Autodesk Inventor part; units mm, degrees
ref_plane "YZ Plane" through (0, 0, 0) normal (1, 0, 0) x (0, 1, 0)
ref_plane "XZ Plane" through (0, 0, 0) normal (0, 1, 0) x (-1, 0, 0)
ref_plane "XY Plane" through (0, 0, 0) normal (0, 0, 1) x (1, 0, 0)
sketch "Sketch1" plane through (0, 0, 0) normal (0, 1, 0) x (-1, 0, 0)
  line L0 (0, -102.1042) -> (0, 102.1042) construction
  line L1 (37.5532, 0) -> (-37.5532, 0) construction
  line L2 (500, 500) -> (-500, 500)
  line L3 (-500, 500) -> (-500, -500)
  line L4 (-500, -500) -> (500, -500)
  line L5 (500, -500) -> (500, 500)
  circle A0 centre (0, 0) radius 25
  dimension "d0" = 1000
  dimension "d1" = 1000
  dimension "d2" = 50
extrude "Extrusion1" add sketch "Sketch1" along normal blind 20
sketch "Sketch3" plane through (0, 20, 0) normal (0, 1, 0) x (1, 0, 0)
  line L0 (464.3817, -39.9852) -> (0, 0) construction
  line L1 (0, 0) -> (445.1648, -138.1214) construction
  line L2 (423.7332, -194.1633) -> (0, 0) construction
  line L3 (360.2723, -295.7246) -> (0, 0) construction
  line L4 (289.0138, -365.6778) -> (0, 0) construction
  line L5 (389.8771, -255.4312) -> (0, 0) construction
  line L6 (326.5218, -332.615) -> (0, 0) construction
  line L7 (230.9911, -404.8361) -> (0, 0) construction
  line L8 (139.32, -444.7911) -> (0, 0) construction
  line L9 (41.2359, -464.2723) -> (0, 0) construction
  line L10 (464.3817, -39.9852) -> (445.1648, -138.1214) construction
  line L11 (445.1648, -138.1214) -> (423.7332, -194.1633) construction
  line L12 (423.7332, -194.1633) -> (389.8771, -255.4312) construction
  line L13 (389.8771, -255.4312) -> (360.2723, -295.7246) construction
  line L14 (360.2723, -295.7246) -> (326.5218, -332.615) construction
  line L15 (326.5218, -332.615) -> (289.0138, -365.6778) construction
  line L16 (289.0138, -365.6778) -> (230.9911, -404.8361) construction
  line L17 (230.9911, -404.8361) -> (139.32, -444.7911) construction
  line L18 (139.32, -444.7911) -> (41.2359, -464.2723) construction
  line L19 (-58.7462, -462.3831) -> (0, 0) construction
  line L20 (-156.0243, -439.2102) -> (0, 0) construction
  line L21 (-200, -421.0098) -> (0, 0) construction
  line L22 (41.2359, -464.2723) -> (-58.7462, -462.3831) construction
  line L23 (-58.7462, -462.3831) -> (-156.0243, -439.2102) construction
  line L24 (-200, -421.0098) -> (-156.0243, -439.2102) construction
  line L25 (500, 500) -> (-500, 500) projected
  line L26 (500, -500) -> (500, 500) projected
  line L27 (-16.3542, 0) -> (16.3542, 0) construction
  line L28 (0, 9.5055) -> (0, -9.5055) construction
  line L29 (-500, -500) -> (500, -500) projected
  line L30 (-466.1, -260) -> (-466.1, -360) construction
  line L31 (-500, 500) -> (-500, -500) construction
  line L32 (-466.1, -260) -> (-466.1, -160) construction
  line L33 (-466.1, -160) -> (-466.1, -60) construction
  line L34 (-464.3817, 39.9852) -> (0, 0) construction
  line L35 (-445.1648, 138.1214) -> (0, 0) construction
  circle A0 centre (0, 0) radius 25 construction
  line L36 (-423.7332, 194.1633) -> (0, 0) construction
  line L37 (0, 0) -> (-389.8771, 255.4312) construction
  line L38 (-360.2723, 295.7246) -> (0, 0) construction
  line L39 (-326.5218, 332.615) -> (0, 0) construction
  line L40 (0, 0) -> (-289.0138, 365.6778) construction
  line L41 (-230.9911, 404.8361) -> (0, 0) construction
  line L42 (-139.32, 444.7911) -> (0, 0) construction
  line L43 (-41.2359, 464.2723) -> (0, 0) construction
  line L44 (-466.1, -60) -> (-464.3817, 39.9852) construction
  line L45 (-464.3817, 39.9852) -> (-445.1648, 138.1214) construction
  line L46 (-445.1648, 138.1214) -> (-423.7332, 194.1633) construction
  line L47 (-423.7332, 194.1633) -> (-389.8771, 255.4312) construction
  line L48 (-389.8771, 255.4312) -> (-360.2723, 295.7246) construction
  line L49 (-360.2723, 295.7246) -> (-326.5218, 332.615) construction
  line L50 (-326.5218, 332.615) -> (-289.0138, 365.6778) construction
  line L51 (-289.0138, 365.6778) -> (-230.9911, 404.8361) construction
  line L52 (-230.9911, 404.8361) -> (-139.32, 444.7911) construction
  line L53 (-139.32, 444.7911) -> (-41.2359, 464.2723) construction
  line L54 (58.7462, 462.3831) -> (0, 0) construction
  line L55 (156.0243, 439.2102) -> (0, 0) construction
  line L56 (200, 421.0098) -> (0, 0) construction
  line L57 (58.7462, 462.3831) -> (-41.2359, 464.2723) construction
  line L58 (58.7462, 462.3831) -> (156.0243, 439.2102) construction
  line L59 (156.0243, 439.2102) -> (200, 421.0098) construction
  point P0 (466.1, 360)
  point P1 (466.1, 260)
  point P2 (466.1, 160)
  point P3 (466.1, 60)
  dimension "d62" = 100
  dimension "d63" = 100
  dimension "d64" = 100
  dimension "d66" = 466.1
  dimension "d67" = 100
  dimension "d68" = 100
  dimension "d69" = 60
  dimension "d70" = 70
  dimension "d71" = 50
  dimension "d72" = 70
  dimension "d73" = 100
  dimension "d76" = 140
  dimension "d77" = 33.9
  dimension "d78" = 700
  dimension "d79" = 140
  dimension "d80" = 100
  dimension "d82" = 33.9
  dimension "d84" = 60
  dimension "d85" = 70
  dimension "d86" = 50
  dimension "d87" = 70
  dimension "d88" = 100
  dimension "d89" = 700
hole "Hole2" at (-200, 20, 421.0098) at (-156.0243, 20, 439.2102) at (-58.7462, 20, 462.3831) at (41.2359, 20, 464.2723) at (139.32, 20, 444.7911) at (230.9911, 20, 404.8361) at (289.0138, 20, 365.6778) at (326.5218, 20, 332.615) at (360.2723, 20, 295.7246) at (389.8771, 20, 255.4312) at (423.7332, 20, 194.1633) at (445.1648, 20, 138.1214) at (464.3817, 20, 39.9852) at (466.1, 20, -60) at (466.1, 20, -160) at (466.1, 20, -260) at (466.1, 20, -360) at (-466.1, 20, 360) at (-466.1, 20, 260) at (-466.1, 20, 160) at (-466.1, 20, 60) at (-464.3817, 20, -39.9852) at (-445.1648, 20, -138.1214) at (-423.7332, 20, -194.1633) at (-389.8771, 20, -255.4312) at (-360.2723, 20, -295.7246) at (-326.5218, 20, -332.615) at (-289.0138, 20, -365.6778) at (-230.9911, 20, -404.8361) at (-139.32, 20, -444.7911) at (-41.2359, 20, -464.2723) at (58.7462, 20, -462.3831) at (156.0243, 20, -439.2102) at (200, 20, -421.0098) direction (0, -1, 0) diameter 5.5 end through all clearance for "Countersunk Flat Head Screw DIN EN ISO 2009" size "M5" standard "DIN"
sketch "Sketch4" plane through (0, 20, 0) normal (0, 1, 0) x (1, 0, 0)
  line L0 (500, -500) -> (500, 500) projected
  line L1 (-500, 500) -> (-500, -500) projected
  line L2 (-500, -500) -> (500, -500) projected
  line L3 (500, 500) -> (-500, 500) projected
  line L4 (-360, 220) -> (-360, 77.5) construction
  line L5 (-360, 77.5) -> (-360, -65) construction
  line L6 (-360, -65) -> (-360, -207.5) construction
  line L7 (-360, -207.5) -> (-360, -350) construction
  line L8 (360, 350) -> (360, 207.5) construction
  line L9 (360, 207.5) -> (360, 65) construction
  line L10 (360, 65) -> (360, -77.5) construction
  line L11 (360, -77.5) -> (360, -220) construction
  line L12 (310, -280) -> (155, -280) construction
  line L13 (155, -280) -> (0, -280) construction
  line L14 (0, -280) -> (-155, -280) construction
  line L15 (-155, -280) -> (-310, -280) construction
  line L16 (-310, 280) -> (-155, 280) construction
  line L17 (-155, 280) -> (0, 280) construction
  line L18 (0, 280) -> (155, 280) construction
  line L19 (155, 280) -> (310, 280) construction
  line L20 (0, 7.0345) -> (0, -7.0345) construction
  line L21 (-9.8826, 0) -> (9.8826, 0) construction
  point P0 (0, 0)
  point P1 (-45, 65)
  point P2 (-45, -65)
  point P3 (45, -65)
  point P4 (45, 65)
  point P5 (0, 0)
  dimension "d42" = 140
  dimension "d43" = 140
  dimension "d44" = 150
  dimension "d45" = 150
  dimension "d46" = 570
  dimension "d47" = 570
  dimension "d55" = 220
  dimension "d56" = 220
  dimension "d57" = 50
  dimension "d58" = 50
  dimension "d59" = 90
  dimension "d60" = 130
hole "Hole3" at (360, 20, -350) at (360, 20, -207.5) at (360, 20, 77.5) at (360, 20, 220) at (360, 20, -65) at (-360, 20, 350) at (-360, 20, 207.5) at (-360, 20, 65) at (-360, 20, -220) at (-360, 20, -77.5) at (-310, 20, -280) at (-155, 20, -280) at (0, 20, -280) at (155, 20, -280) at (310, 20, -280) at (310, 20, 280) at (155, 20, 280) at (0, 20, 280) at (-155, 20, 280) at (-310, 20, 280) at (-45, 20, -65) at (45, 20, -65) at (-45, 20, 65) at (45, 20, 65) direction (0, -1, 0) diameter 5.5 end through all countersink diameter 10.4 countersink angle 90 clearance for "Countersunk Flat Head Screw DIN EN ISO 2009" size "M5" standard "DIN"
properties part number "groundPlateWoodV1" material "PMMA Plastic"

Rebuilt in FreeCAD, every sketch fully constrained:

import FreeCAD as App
import Part
import Sketcher

V = App.Vector

doc = App.newDocument("Part")
body = doc.addObject("PartDesign::Body", "Body")

sketch1 = doc.addObject("Sketcher::SketchObject", "Sketch")
body.addObject(sketch1)
sketch1.AttachmentSupport = (doc.XZ_Plane, [""])
sketch1.MapMode = "FlatFace"
sketch1.addGeometry(Part.LineSegment(V(-500, -500, 0), V(-500, 500, 0)), False)
sketch1.addGeometry(Part.LineSegment(V(-500, 500, 0), V(500, 500, 0)), False)
sketch1.addGeometry(Part.LineSegment(V(500, 500, 0), V(500, -500, 0)), False)
sketch1.addGeometry(Part.LineSegment(V(500, -500, 0), V(-500, -500, 0)), False)
sketch1.addGeometry(Part.Circle(V(0, 0, 0), V(0, 0, 1), 25), False)
sketch1.addConstraint(Sketcher.Constraint("Coincident", 0, 2, 1, 1))
sketch1.addConstraint(Sketcher.Constraint("Coincident", 1, 2, 2, 1))
sketch1.addConstraint(Sketcher.Constraint("Coincident", 2, 2, 3, 1))
sketch1.addConstraint(Sketcher.Constraint("Coincident", 3, 2, 0, 1))
sketch1.addConstraint(Sketcher.Constraint("Vertical", 0))
sketch1.addConstraint(Sketcher.Constraint("Horizontal", 1))
sketch1.addConstraint(Sketcher.Constraint("Vertical", 2))
sketch1.addConstraint(Sketcher.Constraint("Horizontal", 3))
sketch1.addConstraint(Sketcher.Constraint("Coincident", 4, 3, -1, 1))
sketch1.addConstraint(Sketcher.Constraint("Symmetric", 0, 2, 2, 2, -1, 1))
sketch1.addConstraint(Sketcher.Constraint("Equal", 3, 0))
sketch1.addConstraint(Sketcher.Constraint("Diameter", 4, 50.0))
sketch1.addConstraint(Sketcher.Constraint("DistanceX", 1, 1, 1, 2, 1000.0))
pad1 = doc.addObject("PartDesign::Pad", "Pad")
body.addObject(pad1)
pad1.Profile = sketch1
pad1.Length = 20
pad1.Reversed = True

sketch2 = doc.addObject("Sketcher::SketchObject", "Sketch001")
body.addObject(sketch2)
sketch2.AttachmentSupport = (doc.XZ_Plane, [""])
sketch2.MapMode = "FlatFace"
sketch2.AttachmentOffset = App.Placement(V(0, 0, -20), App.Rotation())
sketch2.addGeometry(Part.Circle(V(-200, 421, 0), V(0, 0, 1), 2.8), False)
sketch2.addGeometry(Part.Circle(V(-156, 439.2, 0), V(0, 0, 1), 2.8), False)
sketch2.addGeometry(Part.Circle(V(-58.7, 462.4, 0), V(0, 0, 1), 2.8), False)
sketch2.addGeometry(Part.Circle(V(41.2, 464.3, 0), V(0, 0, 1), 2.8), False)
sketch2.addGeometry(Part.Circle(V(139.3, 444.8, 0), V(0, 0, 1), 2.8), False)
sketch2.addGeometry(Part.Circle(V(231, 404.8, 0), V(0, 0, 1), 2.8), False)
sketch2.addGeometry(Part.Circle(V(289, 365.7, 0), V(0, 0, 1), 2.8), False)
sketch2.addGeometry(Part.Circle(V(326.5, 332.6, 0), V(0, 0, 1), 2.8), False)
sketch2.addGeometry(Part.Circle(V(360.3, 295.7, 0), V(0, 0, 1), 2.8), False)
sketch2.addGeometry(Part.Circle(V(389.9, 255.4, 0), V(0, 0, 1), 2.8), False)
sketch2.addGeometry(Part.Circle(V(423.7, 194.2, 0), V(0, 0, 1), 2.8), False)
sketch2.addGeometry(Part.Circle(V(445.2, 138.1, 0), V(0, 0, 1), 2.8), False)
sketch2.addGeometry(Part.Circle(V(464.4, 40, 0), V(0, 0, 1), 2.8), False)
sketch2.addGeometry(Part.Circle(V(466.1, -60, 0), V(0, 0, 1), 2.8), False)
sketch2.addGeometry(Part.Circle(V(466.1, -160, 0), V(0, 0, 1), 2.8), False)
sketch2.addGeometry(Part.Circle(V(466.1, -260, 0), V(0, 0, 1), 2.8), False)
sketch2.addGeometry(Part.Circle(V(466.1, -360, 0), V(0, 0, 1), 2.8), False)
sketch2.addGeometry(Part.Circle(V(-466.1, 360, 0), V(0, 0, 1), 2.8), False)
sketch2.addGeometry(Part.Circle(V(-466.1, 260, 0), V(0, 0, 1), 2.8), False)
sketch2.addGeometry(Part.Circle(V(-466.1, 160, 0), V(0, 0, 1), 2.8), False)
sketch2.addGeometry(Part.Circle(V(-466.1, 60, 0), V(0, 0, 1), 2.8), False)
sketch2.addGeometry(Part.Circle(V(-464.4, -40, 0), V(0, 0, 1), 2.8), False)
sketch2.addGeometry(Part.Circle(V(-445.2, -138.1, 0), V(0, 0, 1), 2.8), False)
sketch2.addGeometry(Part.Circle(V(-423.7, -194.2, 0), V(0, 0, 1), 2.8), False)
sketch2.addGeometry(Part.Circle(V(-389.9, -255.4, 0), V(0, 0, 1), 2.8), False)
sketch2.addGeometry(Part.Circle(V(-360.3, -295.7, 0), V(0, 0, 1), 2.8), False)
sketch2.addGeometry(Part.Circle(V(-326.5, -332.6, 0), V(0, 0, 1), 2.8), False)
sketch2.addGeometry(Part.Circle(V(-289, -365.7, 0), V(0, 0, 1), 2.8), False)
sketch2.addGeometry(Part.Circle(V(-231, -404.8, 0), V(0, 0, 1), 2.8), False)
sketch2.addGeometry(Part.Circle(V(-139.3, -444.8, 0), V(0, 0, 1), 2.8), False)
sketch2.addGeometry(Part.Circle(V(-41.2, -464.3, 0), V(0, 0, 1), 2.8), False)
sketch2.addGeometry(Part.Circle(V(58.7, -462.4, 0), V(0, 0, 1), 2.8), False)
sketch2.addGeometry(Part.Circle(V(156, -439.2, 0), V(0, 0, 1), 2.8), False)
sketch2.addGeometry(Part.Circle(V(200, -421, 0), V(0, 0, 1), 2.8), False)
sketch2.addConstraint(Sketcher.Constraint("Equal", 0, 1))
sketch2.addConstraint(Sketcher.Constraint("Equal", 1, 2))
sketch2.addConstraint(Sketcher.Constraint("Equal", 2, 3))
sketch2.addConstraint(Sketcher.Constraint("Equal", 3, 4))
sketch2.addConstraint(Sketcher.Constraint("Equal", 4, 5))
sketch2.addConstraint(Sketcher.Constraint("Equal", 5, 6))
sketch2.addConstraint(Sketcher.Constraint("Equal", 6, 7))
sketch2.addConstraint(Sketcher.Constraint("Equal", 7, 8))
sketch2.addConstraint(Sketcher.Constraint("Equal", 8, 9))
sketch2.addConstraint(Sketcher.Constraint("Equal", 9, 10))
sketch2.addConstraint(Sketcher.Constraint("Equal", 10, 11))
sketch2.addConstraint(Sketcher.Constraint("Equal", 11, 12))
sketch2.addConstraint(Sketcher.Constraint("Equal", 12, 13))
sketch2.addConstraint(Sketcher.Constraint("Equal", 13, 14))
sketch2.addConstraint(Sketcher.Constraint("Equal", 14, 15))
sketch2.addConstraint(Sketcher.Constraint("Equal", 15, 16))
sketch2.addConstraint(Sketcher.Constraint("Equal", 16, 17))
sketch2.addConstraint(Sketcher.Constraint("Equal", 17, 18))
sketch2.addConstraint(Sketcher.Constraint("Equal", 18, 19))
sketch2.addConstraint(Sketcher.Constraint("Equal", 19, 20))
sketch2.addConstraint(Sketcher.Constraint("Equal", 20, 21))
sketch2.addConstraint(Sketcher.Constraint("Equal", 21, 22))
sketch2.addConstraint(Sketcher.Constraint("Equal", 22, 23))
sketch2.addConstraint(Sketcher.Constraint("Equal", 23, 24))
sketch2.addConstraint(Sketcher.Constraint("Equal", 24, 25))
sketch2.addConstraint(Sketcher.Constraint("Equal", 25, 26))
sketch2.addConstraint(Sketcher.Constraint("Equal", 26, 27))
sketch2.addConstraint(Sketcher.Constraint("Equal", 27, 28))
sketch2.addConstraint(Sketcher.Constraint("Equal", 28, 29))
sketch2.addConstraint(Sketcher.Constraint("Equal", 29, 30))
sketch2.addConstraint(Sketcher.Constraint("Equal", 30, 31))
sketch2.addConstraint(Sketcher.Constraint("Equal", 31, 32))
sketch2.addConstraint(Sketcher.Constraint("Equal", 32, 33))
sketch2.addConstraint(Sketcher.Constraint("Symmetric", 16, 3, 17, 3, -1, 1))
sketch2.addConstraint(Sketcher.Constraint("Symmetric", 15, 3, 18, 3, -1, 1))
sketch2.addConstraint(Sketcher.Constraint("Symmetric", 14, 3, 19, 3, -1, 1))
sketch2.addConstraint(Sketcher.Constraint("Symmetric", 13, 3, 20, 3, -1, 1))
sketch2.addConstraint(Sketcher.Constraint("Symmetric", 12, 3, 21, 3, -1, 1))
sketch2.addConstraint(Sketcher.Constraint("Symmetric", 11, 3, 22, 3, -1, 1))
sketch2.addConstraint(Sketcher.Constraint("Symmetric", 10, 3, 23, 3, -1, 1))
sketch2.addConstraint(Sketcher.Constraint("Symmetric", 9, 3, 24, 3, -1, 1))
sketch2.addConstraint(Sketcher.Constraint("Symmetric", 8, 3, 25, 3, -1, 1))
sketch2.addConstraint(Sketcher.Constraint("Symmetric", 7, 3, 26, 3, -1, 1))
sketch2.addConstraint(Sketcher.Constraint("Symmetric", 6, 3, 27, 3, -1, 1))
sketch2.addConstraint(Sketcher.Constraint("Symmetric", 5, 3, 28, 3, -1, 1))
sketch2.addConstraint(Sketcher.Constraint("Symmetric", 4, 3, 29, 3, -1, 1))
sketch2.addConstraint(Sketcher.Constraint("Symmetric", 3, 3, 30, 3, -1, 1))
sketch2.addConstraint(Sketcher.Constraint("Symmetric", 2, 3, 31, 3, -1, 1))
sketch2.addConstraint(Sketcher.Constraint("Symmetric", 1, 3, 32, 3, -1, 1))
sketch2.addConstraint(Sketcher.Constraint("Symmetric", 0, 3, 33, 3, -1, 1))
sketch2.addConstraint(Sketcher.Constraint("Vertical", 13, 3, 14, 3))
sketch2.addConstraint(Sketcher.Constraint("Vertical", 14, 3, 15, 3))
sketch2.addConstraint(Sketcher.Constraint("Vertical", 15, 3, 16, 3))
sketch2.addConstraint(Sketcher.Constraint("Diameter", 0, 5.5))
sketch2.addConstraint(Sketcher.Constraint("DistanceX", 0, 3, -1, 1, 200.0))
sketch2.addConstraint(Sketcher.Constraint("DistanceY", 13, 3, -1, 1, 60.0))
sketch2.addConstraint(Sketcher.Constraint("DistanceY", 14, 3, -1, 1, 160.0))
sketch2.addConstraint(Sketcher.Constraint("DistanceY", 15, 3, -1, 1, 260.0))
sketch2.addConstraint(Sketcher.Constraint("DistanceY", 16, 3, -1, 1, 360.0))
sketch2.addConstraint(Sketcher.Constraint("DistanceX", -1, 1, 13, 3, 466.1))
sketch2.addConstraint(Sketcher.Constraint("DistanceX", -1, 1, 4, 3, 139.32))
sketch2.addConstraint(Sketcher.Constraint("DistanceX", 2, 3, 6, 3, 347.76))
sketch2.addConstraint(Sketcher.Constraint("DistanceY", 9, 3, 4, 3, 189.36))
sketch2.addConstraint(Sketcher.Constraint("DistanceX", 7, 3, 12, 3, 137.86))
sketch2.addConstraint(Sketcher.Constraint("DistanceY", -1, 1, 2, 3, 462.383))
sketch2.addConstraint(Sketcher.Constraint("DistanceX", -1, 1, 3, 3, 41.236))
sketch2.addConstraint(Sketcher.Constraint("DistanceY", -1, 1, 4, 3, 444.791))
sketch2.addConstraint(Sketcher.Constraint("DistanceX", -1, 1, 5, 3, 230.991))
sketch2.addConstraint(Sketcher.Constraint("DistanceY", -1, 1, 5, 3, 404.836))
sketch2.addConstraint(Sketcher.Constraint("DistanceY", -1, 1, 7, 3, 332.615))
sketch2.addConstraint(Sketcher.Constraint("DistanceX", -1, 1, 9, 3, 389.877))
sketch2.addConstraint(Sketcher.Constraint("DistanceX", 1, 3, 2, 3, 97.278))
sketch2.addConstraint(Sketcher.Constraint("DistanceY", 1, 3, 2, 3, 23.173))
sketch2.addConstraint(Sketcher.Constraint("DistanceX", 2, 3, 3, 3, 99.982))
sketch2.addConstraint(Sketcher.Constraint("DistanceY", 1, 3, 3, 3, 25.062))
sketch2.addConstraint(Sketcher.Constraint("DistanceX", 6, 3, 7, 3, 37.508))
sketch2.addConstraint(Sketcher.Constraint("DistanceX", 9, 3, 10, 3, 33.856))
sketch2.addConstraint(Sketcher.Constraint("DistanceY", 10, 3, 9, 3, 61.268))
sketch2.addConstraint(Sketcher.Constraint("DistanceX", 8, 3, 10, 3, 63.461))
sketch2.addConstraint(Sketcher.Constraint("DistanceY", 11, 3, 10, 3, 56.042))
sketch2.addConstraint(Sketcher.Constraint("DistanceX", 7, 3, 11, 3, 118.643))
sketch2.addConstraint(Sketcher.Constraint("DistanceY", 12, 3, 10, 3, 154.178))
sketch2.addConstraint(Sketcher.Constraint("DistanceY", 21, 3, 0, 3, 460.995))
sketch2.addConstraint(Sketcher.Constraint("DistanceY", -1, 1, 6, 3, 365.6778))
sketch2.addConstraint(Sketcher.Constraint("DistanceY", -1, 1, 8, 3, 295.7246))
doc.recompute()
hole = doc.addObject("PartDesign::Hole", "Hole")
body.addObject(hole)
hole.Profile = sketch2
hole.ThreadType = "None"
hole.Diameter = 5.5
hole.DepthType = "ThroughAll"
hole.Reversed = True

sketch3 = doc.addObject("Sketcher::SketchObject", "Sketch002")
body.addObject(sketch3)
sketch3.AttachmentSupport = (doc.XZ_Plane, [""])
sketch3.MapMode = "FlatFace"
sketch3.AttachmentOffset = App.Placement(V(0, 0, -20), App.Rotation())
sketch3.addGeometry(Part.Circle(V(360, -350, 0), V(0, 0, 1), 2.8), False)
sketch3.addGeometry(Part.Circle(V(360, -207.5, 0), V(0, 0, 1), 2.8), False)
sketch3.addGeometry(Part.Circle(V(360, 77.5, 0), V(0, 0, 1), 2.8), False)
sketch3.addGeometry(Part.Circle(V(360, 220, 0), V(0, 0, 1), 2.8), False)
sketch3.addGeometry(Part.Circle(V(360, -65, 0), V(0, 0, 1), 2.8), False)
sketch3.addGeometry(Part.Circle(V(-360, 350, 0), V(0, 0, 1), 2.8), False)
sketch3.addGeometry(Part.Circle(V(-360, 207.5, 0), V(0, 0, 1), 2.8), False)
sketch3.addGeometry(Part.Circle(V(-360, 65, 0), V(0, 0, 1), 2.8), False)
sketch3.addGeometry(Part.Circle(V(-360, -220, 0), V(0, 0, 1), 2.8), False)
sketch3.addGeometry(Part.Circle(V(-360, -77.5, 0), V(0, 0, 1), 2.8), False)
sketch3.addGeometry(Part.Circle(V(-310, -280, 0), V(0, 0, 1), 2.8), False)
sketch3.addGeometry(Part.Circle(V(-155, -280, 0), V(0, 0, 1), 2.8), False)
sketch3.addGeometry(Part.Circle(V(0, -280, 0), V(0, 0, 1), 2.8), False)
sketch3.addGeometry(Part.Circle(V(155, -280, 0), V(0, 0, 1), 2.8), False)
sketch3.addGeometry(Part.Circle(V(310, -280, 0), V(0, 0, 1), 2.8), False)
sketch3.addGeometry(Part.Circle(V(310, 280, 0), V(0, 0, 1), 2.8), False)
sketch3.addGeometry(Part.Circle(V(155, 280, 0), V(0, 0, 1), 2.8), False)
sketch3.addGeometry(Part.Circle(V(0, 280, 0), V(0, 0, 1), 2.8), False)
sketch3.addGeometry(Part.Circle(V(-155, 280, 0), V(0, 0, 1), 2.8), False)
sketch3.addGeometry(Part.Circle(V(-310, 280, 0), V(0, 0, 1), 2.8), False)
sketch3.addGeometry(Part.Circle(V(-45, -65, 0), V(0, 0, 1), 2.8), False)
sketch3.addGeometry(Part.Circle(V(45, -65, 0), V(0, 0, 1), 2.8), False)
sketch3.addGeometry(Part.Circle(V(-45, 65, 0), V(0, 0, 1), 2.8), False)
sketch3.addGeometry(Part.Circle(V(45, 65, 0), V(0, 0, 1), 2.8), False)
sketch3.addConstraint(Sketcher.Constraint("Equal", 0, 1))
sketch3.addConstraint(Sketcher.Constraint("Equal", 1, 2))
sketch3.addConstraint(Sketcher.Constraint("Equal", 2, 3))
sketch3.addConstraint(Sketcher.Constraint("Equal", 3, 4))
sketch3.addConstraint(Sketcher.Constraint("Equal", 4, 5))
sketch3.addConstraint(Sketcher.Constraint("Equal", 5, 6))
sketch3.addConstraint(Sketcher.Constraint("Equal", 6, 7))
sketch3.addConstraint(Sketcher.Constraint("Equal", 7, 8))
sketch3.addConstraint(Sketcher.Constraint("Equal", 8, 9))
sketch3.addConstraint(Sketcher.Constraint("Equal", 9, 10))
sketch3.addConstraint(Sketcher.Constraint("Equal", 10, 11))
sketch3.addConstraint(Sketcher.Constraint("Equal", 11, 12))
sketch3.addConstraint(Sketcher.Constraint("Equal", 12, 13))
sketch3.addConstraint(Sketcher.Constraint("Equal", 13, 14))
sketch3.addConstraint(Sketcher.Constraint("Equal", 14, 15))
sketch3.addConstraint(Sketcher.Constraint("Equal", 15, 16))
sketch3.addConstraint(Sketcher.Constraint("Equal", 16, 17))
sketch3.addConstraint(Sketcher.Constraint("Equal", 17, 18))
sketch3.addConstraint(Sketcher.Constraint("Equal", 18, 19))
sketch3.addConstraint(Sketcher.Constraint("Equal", 19, 20))
sketch3.addConstraint(Sketcher.Constraint("Equal", 20, 21))
sketch3.addConstraint(Sketcher.Constraint("Equal", 21, 22))
sketch3.addConstraint(Sketcher.Constraint("Equal", 22, 23))
sketch3.addConstraint(Sketcher.Constraint("Symmetric", 0, 3, 5, 3, -1, 1))
sketch3.addConstraint(Sketcher.Constraint("Symmetric", 1, 3, 6, 3, -1, 1))
sketch3.addConstraint(Sketcher.Constraint("Symmetric", 4, 3, 7, 3, -1, 1))
sketch3.addConstraint(Sketcher.Constraint("Symmetric", 3, 3, 8, 3, -1, 1))
sketch3.addConstraint(Sketcher.Constraint("Symmetric", 2, 3, 9, 3, -1, 1))
sketch3.addConstraint(Sketcher.Constraint("Symmetric", 10, 3, 15, 3, -1, 1))
sketch3.addConstraint(Sketcher.Constraint("Symmetric", 11, 3, 16, 3, -1, 1))
sketch3.addConstraint(Sketcher.Constraint("Symmetric", 12, 3, 17, 3, -1, 1))
sketch3.addConstraint(Sketcher.Constraint("Symmetric", 13, 3, 18, 3, -1, 1))
sketch3.addConstraint(Sketcher.Constraint("Symmetric", 14, 3, 19, 3, -1, 1))
sketch3.addConstraint(Sketcher.Constraint("Symmetric", 21, 3, 22, 3, -1, 1))
sketch3.addConstraint(Sketcher.Constraint("Symmetric", 20, 3, 23, 3, -1, 1))
sketch3.addConstraint(Sketcher.Constraint("Symmetric", 11, 3, 13, 3, -2))
sketch3.addConstraint(Sketcher.Constraint("Symmetric", 10, 3, 14, 3, -2))
sketch3.addConstraint(Sketcher.Constraint("Symmetric", 20, 3, 21, 3, -2))
sketch3.addConstraint(Sketcher.Constraint("PointOnObject", 12, 3, -2))
sketch3.addConstraint(Sketcher.Constraint("Horizontal", 10, 3, 11, 3))
sketch3.addConstraint(Sketcher.Constraint("Horizontal", 11, 3, 12, 3))
sketch3.addConstraint(Sketcher.Constraint("Horizontal", 4, 3, 20, 3))
sketch3.addConstraint(Sketcher.Constraint("Vertical", 0, 3, 1, 3))
sketch3.addConstraint(Sketcher.Constraint("Vertical", 1, 3, 2, 3))
sketch3.addConstraint(Sketcher.Constraint("Vertical", 2, 3, 3, 3))
sketch3.addConstraint(Sketcher.Constraint("Vertical", 3, 3, 4, 3))
sketch3.addConstraint(Sketcher.Constraint("Diameter", 0, 5.5))
sketch3.addConstraint(Sketcher.Constraint("DistanceX", -1, 1, 0, 3, 360.0))
sketch3.addConstraint(Sketcher.Constraint("DistanceY", 0, 3, -1, 1, 350.0))
sketch3.addConstraint(Sketcher.Constraint("DistanceY", -1, 1, 3, 3, 220.0))
sketch3.addConstraint(Sketcher.Constraint("DistanceY", 4, 3, -1, 1, 65.0))
sketch3.addConstraint(Sketcher.Constraint("DistanceX", 10, 3, -1, 1, 310.0))
sketch3.addConstraint(Sketcher.Constraint("DistanceY", 10, 3, -1, 1, 280.0))
sketch3.addConstraint(Sketcher.Constraint("DistanceX", 11, 3, -1, 1, 155.0))
sketch3.addConstraint(Sketcher.Constraint("DistanceX", 20, 3, -1, 1, 45.0))
sketch3.addConstraint(Sketcher.Constraint("DistanceY", 1, 3, 2, 3, 285.0))
sketch3.addConstraint(Sketcher.Constraint("DistanceY", 2, 3, 6, 3, 130.0))
doc.recompute()
hole2 = doc.addObject("PartDesign::Hole", "Hole001")
body.addObject(hole2)
hole2.Profile = sketch3
hole2.ThreadType = "None"
hole2.Diameter = 5.5
hole2.DepthType = "ThroughAll"
hole2.HoleCutType = "Countersink"
hole2.HoleCutDiameter = 10.4
hole2.HoleCutCountersinkAngle = 90
hole2.Reversed = True

doc.recompute()
